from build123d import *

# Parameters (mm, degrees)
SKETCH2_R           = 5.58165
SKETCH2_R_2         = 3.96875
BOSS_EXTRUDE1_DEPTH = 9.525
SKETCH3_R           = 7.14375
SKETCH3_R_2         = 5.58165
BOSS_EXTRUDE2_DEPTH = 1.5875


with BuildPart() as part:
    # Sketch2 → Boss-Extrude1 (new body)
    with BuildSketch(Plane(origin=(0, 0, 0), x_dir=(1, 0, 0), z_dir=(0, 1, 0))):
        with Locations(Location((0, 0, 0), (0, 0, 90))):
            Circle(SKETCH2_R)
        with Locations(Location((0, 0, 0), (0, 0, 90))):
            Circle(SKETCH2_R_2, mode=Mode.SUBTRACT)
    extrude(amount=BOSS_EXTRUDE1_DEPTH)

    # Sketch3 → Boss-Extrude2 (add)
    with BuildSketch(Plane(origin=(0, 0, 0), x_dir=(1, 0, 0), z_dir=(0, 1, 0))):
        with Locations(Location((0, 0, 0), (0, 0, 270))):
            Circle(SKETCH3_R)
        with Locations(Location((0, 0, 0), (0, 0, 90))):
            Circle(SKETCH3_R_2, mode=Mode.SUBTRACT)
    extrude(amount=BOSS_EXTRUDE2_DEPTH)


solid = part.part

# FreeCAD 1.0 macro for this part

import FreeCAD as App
import Part
import Sketcher

V = App.Vector
Q = App.Units.Quantity

doc = App.newDocument("Part")
body = doc.addObject("PartDesign::Body", "Body")

# Sketch on XZ plane
sketch1 = body.newObject("Sketcher::SketchObject", "Sketch")
sketch1.AttachmentSupport = (doc.getObject("XZ_Plane"), [""])
sketch1.MapMode = "FlatFace"
sketch1.addGeometry(Part.Circle(V(0, 0, 0), V(0, 0, 1), 5.6), False)
sketch1.addGeometry(Part.Circle(V(0, 0, 0), V(0, 0, 1), 4), False)
sketch1.addConstraint(Sketcher.Constraint("Coincident", 0, 3, -1, 1))
sketch1.addConstraint(Sketcher.Constraint("Coincident", 1, 3, -1, 1))
sketch1.addConstraint(Sketcher.Constraint("Diameter", 1, Q("0.3125 in")))
sketch1.addConstraint(Sketcher.Constraint("Diameter", 0, Q("0.4395 in")))
pad1 = body.newObject("PartDesign::Pad", "Pad")
pad1.Profile = sketch1
pad1.Length = Q("0.375 in")
pad1.Reversed = True

# Sketch on XZ plane
sketch2 = body.newObject("Sketcher::SketchObject", "Sketch001")
sketch2.AttachmentSupport = (doc.getObject("XZ_Plane"), [""])
sketch2.MapMode = "FlatFace"
sketch2.addGeometry(Part.Circle(V(0, 0, 0), V(0, 0, 1), 7), False)
sketch2.addGeometry(Part.Circle(V(0, 0, 0), V(0, 0, 1), 6), False)
sketch2.addConstraint(Sketcher.Constraint("Coincident", 0, 3, -1, 1))
sketch2.addConstraint(Sketcher.Constraint("Coincident", 1, 3, -1, 1))
sketch2.addConstraint(Sketcher.Constraint("Diameter", 0, Q("0.5625 in")))
sketch2.addConstraint(Sketcher.Constraint("Diameter", 1, Q("0.4395 in")))
pad2 = body.newObject("PartDesign::Pad", "Pad001")
pad2.Profile = sketch2
pad2.Length = Q("0.0625 in")
pad2.Reversed = True

doc.recompute()
